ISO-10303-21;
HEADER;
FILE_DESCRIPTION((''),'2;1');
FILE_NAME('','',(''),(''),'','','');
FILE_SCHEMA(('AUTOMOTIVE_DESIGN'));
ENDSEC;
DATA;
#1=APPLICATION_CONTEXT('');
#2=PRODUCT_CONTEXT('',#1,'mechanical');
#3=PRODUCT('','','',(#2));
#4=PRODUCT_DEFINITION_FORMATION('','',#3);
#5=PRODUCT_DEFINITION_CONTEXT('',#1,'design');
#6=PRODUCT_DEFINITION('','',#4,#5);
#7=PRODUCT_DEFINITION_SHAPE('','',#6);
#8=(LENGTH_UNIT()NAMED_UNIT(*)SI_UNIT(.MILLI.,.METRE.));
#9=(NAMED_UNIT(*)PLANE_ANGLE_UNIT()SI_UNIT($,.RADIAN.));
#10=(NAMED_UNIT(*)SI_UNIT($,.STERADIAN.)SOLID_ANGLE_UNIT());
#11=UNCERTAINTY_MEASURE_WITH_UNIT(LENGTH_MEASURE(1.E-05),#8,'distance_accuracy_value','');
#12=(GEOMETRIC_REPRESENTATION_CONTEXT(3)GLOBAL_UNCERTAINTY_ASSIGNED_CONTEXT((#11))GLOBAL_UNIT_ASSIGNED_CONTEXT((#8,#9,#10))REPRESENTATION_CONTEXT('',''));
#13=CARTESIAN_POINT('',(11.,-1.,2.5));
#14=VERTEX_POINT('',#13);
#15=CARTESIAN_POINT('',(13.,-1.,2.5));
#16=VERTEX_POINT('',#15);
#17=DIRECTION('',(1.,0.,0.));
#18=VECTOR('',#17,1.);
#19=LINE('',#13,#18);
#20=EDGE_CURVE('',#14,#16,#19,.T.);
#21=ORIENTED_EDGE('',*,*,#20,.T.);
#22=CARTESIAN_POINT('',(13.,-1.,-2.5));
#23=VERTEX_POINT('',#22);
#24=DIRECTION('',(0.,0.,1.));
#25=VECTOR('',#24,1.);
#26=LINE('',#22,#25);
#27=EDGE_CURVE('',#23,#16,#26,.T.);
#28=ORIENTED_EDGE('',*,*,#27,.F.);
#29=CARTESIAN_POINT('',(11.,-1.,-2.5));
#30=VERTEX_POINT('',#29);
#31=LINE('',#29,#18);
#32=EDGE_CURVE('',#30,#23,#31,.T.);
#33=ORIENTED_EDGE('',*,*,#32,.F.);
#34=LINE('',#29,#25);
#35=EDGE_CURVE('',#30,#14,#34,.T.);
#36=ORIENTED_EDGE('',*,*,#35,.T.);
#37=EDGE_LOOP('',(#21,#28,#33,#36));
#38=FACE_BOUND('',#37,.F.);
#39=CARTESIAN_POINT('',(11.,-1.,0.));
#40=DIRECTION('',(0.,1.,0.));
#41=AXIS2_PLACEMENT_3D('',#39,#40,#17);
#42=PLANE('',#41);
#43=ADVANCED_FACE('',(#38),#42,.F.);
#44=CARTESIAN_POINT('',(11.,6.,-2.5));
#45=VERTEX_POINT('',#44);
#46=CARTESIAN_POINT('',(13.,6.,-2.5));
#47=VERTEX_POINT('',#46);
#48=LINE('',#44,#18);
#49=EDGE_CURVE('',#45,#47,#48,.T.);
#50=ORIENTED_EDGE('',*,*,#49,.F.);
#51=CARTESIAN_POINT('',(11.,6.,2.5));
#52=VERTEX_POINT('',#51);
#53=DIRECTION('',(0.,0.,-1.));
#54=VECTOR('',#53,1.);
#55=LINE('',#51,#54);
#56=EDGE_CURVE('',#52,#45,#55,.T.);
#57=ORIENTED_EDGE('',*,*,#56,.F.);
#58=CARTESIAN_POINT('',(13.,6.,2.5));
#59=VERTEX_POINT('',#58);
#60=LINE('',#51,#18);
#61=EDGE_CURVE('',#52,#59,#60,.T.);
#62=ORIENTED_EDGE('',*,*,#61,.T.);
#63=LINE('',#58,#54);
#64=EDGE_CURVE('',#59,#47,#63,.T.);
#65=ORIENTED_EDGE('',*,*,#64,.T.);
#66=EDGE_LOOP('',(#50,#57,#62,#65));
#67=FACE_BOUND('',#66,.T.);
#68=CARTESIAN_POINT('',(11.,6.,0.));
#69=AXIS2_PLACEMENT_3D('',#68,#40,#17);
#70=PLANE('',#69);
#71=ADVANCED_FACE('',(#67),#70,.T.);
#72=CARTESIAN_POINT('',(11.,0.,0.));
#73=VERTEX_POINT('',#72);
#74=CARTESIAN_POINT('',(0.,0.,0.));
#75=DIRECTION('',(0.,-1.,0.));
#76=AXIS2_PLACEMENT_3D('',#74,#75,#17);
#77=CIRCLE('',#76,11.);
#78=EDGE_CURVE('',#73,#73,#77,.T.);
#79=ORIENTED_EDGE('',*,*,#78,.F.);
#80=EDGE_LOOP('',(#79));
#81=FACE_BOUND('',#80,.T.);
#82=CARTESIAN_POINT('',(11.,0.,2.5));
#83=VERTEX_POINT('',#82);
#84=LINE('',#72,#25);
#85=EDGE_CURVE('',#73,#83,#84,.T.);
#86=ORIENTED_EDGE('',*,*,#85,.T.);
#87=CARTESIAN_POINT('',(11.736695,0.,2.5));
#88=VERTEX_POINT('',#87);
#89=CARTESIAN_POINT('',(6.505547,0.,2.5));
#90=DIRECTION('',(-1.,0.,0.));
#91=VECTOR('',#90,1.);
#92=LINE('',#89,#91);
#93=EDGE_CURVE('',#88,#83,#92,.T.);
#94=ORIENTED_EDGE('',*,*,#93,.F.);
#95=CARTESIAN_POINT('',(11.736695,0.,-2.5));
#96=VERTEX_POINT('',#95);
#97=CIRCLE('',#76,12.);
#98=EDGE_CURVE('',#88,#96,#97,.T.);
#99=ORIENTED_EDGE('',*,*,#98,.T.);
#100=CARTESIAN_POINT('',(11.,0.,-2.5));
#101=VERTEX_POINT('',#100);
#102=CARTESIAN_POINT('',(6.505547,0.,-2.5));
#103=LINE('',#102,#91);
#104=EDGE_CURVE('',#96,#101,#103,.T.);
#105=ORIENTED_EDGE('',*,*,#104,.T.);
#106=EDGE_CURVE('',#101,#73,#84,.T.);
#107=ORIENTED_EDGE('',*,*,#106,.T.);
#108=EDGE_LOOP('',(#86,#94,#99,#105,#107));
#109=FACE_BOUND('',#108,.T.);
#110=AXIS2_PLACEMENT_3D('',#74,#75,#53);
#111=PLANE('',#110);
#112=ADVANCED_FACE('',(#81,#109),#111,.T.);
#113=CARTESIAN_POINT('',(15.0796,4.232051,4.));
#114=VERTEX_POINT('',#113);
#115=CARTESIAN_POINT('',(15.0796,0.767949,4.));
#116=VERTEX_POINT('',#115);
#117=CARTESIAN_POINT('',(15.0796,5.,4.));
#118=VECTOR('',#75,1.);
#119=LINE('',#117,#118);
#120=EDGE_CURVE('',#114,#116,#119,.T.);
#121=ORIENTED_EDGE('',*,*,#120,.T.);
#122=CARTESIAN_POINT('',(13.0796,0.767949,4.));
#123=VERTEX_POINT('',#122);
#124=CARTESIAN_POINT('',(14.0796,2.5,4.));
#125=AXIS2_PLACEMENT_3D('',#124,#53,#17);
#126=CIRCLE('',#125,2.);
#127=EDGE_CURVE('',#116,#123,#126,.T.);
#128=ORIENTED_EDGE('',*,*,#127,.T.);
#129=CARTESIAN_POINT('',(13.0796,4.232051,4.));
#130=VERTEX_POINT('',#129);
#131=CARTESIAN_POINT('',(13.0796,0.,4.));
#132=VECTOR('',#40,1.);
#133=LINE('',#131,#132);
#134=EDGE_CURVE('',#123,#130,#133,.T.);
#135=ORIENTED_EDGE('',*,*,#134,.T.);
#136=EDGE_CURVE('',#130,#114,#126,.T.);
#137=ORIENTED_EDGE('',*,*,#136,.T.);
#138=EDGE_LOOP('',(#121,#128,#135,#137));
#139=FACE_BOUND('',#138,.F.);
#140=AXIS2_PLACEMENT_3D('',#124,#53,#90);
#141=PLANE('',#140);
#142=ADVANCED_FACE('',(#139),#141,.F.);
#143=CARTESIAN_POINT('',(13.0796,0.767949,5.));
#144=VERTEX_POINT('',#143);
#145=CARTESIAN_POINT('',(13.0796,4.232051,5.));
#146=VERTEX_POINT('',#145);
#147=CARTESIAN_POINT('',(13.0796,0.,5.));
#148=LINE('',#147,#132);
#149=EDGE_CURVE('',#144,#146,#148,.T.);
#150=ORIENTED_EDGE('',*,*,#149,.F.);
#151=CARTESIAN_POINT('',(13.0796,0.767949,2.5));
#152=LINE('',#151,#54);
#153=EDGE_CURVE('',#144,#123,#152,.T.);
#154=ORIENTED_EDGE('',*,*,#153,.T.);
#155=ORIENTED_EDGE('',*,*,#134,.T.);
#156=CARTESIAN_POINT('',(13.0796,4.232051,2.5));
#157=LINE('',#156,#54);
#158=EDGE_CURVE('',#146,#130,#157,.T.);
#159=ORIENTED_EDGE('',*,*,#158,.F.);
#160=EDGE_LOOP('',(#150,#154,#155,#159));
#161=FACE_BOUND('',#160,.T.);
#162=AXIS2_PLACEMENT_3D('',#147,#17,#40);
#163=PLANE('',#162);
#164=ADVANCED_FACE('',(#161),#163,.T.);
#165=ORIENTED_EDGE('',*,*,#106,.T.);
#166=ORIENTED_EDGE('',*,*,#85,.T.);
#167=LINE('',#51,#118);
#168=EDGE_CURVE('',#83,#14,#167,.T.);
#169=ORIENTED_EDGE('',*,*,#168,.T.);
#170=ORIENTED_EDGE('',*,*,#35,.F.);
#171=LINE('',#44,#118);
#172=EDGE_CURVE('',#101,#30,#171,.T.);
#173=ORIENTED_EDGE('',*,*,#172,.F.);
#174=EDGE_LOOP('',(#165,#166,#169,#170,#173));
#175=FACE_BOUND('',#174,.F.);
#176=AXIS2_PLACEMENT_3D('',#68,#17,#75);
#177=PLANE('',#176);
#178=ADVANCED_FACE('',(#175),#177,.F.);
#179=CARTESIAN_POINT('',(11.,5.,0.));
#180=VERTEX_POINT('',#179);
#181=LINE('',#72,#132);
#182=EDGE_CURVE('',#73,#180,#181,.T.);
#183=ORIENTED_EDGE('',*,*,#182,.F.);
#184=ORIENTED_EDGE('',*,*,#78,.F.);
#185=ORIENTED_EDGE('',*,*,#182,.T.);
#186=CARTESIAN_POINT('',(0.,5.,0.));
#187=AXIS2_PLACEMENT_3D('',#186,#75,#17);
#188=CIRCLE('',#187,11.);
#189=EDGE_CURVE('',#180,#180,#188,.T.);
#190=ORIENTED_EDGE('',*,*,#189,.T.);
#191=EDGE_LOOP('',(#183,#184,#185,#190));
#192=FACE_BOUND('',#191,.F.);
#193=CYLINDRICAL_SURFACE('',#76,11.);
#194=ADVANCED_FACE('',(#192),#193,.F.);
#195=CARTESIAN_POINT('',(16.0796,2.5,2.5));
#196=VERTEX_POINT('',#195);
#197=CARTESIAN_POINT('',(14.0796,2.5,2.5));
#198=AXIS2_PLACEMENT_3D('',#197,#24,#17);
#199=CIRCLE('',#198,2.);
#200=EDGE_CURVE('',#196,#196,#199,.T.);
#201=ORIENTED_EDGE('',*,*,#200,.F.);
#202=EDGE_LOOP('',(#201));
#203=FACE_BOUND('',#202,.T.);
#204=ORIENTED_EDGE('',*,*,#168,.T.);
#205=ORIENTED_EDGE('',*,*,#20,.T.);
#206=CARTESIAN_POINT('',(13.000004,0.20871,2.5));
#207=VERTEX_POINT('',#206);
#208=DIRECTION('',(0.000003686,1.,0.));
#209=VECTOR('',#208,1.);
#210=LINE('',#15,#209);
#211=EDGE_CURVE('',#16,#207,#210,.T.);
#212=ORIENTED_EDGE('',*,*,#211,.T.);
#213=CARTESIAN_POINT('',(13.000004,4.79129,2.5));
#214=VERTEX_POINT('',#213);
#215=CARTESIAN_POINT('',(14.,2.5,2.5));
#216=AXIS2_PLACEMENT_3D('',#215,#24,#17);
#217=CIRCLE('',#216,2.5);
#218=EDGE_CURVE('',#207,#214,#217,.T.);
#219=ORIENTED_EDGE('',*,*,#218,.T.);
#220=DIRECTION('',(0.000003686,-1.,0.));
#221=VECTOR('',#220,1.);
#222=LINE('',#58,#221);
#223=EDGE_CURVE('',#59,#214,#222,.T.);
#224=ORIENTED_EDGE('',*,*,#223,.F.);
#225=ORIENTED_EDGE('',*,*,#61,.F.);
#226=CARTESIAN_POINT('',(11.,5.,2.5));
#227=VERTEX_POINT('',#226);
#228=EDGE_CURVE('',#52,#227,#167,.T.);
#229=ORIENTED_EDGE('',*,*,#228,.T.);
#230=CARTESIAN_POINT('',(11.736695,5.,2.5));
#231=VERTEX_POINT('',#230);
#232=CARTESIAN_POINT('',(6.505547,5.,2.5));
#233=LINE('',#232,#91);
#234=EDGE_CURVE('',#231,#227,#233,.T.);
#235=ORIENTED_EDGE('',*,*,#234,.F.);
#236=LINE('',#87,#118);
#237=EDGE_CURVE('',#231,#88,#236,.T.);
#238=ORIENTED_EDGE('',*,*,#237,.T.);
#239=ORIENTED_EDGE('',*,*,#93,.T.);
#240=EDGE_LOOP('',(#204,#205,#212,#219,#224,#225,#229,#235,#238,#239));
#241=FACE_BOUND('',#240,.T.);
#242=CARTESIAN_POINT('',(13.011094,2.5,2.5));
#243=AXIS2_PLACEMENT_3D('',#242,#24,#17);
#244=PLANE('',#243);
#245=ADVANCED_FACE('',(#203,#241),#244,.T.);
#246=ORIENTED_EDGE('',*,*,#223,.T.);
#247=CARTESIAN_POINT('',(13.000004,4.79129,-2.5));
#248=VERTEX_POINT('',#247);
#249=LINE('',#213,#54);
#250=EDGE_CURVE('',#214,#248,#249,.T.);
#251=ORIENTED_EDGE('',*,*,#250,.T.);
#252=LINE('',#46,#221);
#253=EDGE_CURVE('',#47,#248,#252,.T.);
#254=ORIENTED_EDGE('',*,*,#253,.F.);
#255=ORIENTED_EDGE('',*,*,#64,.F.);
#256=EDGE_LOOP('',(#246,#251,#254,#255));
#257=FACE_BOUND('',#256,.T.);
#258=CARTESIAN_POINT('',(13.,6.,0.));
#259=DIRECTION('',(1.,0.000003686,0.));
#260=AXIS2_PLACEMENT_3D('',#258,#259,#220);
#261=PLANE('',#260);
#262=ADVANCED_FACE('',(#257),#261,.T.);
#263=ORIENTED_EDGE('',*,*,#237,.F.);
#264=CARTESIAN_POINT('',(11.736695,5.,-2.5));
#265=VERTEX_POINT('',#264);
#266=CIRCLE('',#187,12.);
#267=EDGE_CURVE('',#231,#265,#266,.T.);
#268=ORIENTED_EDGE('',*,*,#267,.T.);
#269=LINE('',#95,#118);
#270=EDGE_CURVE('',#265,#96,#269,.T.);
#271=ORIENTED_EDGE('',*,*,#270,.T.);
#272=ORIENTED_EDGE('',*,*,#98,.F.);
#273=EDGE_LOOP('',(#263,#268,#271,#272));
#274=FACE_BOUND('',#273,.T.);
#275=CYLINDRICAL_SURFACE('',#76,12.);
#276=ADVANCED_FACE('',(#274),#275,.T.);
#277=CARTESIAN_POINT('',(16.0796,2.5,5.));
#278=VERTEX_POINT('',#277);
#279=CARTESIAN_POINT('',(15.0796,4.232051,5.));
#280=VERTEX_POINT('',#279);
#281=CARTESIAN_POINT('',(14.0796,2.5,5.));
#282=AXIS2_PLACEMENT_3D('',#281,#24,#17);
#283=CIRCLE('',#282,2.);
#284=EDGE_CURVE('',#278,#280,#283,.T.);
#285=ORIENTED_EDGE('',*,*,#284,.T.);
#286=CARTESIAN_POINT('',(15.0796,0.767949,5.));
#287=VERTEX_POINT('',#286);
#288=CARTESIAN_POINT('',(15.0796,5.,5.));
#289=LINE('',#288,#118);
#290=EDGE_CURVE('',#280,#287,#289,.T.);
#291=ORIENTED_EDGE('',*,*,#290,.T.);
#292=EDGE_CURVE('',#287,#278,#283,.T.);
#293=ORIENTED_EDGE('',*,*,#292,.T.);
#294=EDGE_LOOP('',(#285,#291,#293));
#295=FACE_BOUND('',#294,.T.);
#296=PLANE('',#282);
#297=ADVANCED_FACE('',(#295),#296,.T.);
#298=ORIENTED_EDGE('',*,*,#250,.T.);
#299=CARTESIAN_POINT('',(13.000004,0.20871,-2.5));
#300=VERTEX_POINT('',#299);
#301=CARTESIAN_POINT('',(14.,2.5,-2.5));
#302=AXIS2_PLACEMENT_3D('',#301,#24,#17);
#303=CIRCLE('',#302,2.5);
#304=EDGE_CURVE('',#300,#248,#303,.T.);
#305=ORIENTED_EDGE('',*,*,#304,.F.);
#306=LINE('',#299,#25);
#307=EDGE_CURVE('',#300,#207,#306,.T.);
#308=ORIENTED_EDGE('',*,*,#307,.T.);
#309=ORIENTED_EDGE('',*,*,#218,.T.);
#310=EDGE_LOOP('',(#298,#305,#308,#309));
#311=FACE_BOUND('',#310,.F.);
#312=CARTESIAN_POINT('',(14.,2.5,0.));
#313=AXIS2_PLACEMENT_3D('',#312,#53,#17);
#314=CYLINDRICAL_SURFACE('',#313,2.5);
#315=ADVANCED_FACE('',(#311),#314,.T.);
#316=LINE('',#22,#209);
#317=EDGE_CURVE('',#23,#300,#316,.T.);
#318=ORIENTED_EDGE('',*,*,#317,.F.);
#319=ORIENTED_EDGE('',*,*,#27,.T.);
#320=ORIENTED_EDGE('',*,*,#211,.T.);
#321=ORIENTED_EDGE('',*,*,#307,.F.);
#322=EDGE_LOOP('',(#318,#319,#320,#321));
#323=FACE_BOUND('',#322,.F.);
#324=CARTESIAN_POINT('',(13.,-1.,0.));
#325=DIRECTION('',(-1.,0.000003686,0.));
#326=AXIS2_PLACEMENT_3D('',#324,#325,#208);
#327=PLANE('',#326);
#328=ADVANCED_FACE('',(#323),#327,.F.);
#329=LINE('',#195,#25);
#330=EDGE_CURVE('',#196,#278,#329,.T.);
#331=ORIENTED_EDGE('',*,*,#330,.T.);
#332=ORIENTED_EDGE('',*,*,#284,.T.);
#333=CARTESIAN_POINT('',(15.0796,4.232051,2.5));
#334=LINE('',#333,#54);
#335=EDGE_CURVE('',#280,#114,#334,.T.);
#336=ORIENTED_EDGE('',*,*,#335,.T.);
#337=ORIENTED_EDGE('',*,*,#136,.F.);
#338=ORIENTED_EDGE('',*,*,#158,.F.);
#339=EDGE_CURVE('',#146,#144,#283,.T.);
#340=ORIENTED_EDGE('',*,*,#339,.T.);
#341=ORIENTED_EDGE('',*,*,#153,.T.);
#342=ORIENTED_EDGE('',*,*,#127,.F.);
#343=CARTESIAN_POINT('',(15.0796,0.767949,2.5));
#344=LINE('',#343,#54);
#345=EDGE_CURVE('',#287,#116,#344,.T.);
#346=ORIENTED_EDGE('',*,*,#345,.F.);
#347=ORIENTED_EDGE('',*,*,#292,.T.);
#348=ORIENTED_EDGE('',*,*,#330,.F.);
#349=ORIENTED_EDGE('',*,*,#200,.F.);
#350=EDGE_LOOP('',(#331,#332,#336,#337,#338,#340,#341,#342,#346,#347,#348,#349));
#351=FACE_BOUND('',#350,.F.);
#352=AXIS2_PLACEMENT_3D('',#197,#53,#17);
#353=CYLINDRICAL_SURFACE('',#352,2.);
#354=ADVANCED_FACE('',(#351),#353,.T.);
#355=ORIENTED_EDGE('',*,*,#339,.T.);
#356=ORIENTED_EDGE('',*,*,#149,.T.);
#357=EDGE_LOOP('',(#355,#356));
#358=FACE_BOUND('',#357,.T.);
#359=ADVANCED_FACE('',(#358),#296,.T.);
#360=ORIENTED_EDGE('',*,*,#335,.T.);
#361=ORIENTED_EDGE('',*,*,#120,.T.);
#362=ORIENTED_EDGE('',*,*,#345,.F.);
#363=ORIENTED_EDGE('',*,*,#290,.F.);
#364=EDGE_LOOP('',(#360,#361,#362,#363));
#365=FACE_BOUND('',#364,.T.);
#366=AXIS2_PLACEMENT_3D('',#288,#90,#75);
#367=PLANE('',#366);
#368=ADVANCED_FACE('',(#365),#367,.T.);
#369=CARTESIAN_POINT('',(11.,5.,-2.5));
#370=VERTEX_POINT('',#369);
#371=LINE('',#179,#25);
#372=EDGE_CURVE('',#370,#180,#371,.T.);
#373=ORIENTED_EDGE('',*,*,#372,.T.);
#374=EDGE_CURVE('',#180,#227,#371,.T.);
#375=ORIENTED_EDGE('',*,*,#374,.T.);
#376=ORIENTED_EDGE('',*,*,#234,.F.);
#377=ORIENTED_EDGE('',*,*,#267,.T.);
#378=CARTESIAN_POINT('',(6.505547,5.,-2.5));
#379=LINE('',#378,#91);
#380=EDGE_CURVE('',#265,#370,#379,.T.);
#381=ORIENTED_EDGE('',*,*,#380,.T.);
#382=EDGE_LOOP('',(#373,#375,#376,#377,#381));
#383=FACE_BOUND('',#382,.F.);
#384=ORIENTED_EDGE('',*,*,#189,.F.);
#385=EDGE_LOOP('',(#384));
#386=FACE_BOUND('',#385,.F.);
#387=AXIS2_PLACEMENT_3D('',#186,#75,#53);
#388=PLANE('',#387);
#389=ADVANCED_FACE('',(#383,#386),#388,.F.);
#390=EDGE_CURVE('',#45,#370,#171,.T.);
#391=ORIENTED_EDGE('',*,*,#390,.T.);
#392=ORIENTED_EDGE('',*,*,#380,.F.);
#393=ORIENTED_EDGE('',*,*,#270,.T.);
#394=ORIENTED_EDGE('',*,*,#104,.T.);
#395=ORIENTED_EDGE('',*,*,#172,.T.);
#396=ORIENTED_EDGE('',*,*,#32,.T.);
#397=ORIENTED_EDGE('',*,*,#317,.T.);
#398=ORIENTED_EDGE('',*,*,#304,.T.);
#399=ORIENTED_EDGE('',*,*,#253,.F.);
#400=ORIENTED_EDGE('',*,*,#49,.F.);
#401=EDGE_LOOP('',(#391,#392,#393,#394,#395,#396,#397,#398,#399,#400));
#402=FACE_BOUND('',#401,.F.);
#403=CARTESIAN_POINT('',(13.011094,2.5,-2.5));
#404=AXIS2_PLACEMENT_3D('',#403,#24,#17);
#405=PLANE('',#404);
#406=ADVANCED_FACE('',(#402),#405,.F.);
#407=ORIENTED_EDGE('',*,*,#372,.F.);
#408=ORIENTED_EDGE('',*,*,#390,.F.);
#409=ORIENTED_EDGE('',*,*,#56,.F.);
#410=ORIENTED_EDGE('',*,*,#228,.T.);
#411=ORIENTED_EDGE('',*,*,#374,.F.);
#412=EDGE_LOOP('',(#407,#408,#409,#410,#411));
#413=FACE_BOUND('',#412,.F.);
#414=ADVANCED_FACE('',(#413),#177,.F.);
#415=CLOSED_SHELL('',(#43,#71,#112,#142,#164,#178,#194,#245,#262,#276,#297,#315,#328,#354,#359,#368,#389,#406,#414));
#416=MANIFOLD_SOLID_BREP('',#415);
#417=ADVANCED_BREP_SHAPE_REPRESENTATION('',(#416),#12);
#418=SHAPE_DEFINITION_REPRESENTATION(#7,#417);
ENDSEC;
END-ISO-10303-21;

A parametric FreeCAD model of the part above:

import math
import FreeCAD as App
import Part
import Sketcher
Q = App.Units.Quantity

doc = App.newDocument("Part")
body = doc.addObject("PartDesign::Body", "Body")

# Sketch on XZ plane
sketch1 = body.newObject("Sketcher::SketchObject", "Sketch")
sketch1.AttachmentSupport = (doc.getObject("XZ_Plane"), [""])
sketch1.MapMode = "FlatFace"
sketch1.addGeometry([
    Part.Circle(App.Vector(0, 0, 0), App.Vector(0, 0, 1), 12),
    Part.Circle(App.Vector(0, 0, 0), App.Vector(0, 0, 1), 11),
], False)
sketch1.addConstraint([
    Sketcher.Constraint("Coincident", 0, 3, -1, 1),
    Sketcher.Constraint("Coincident", 1, 3, -1, 1),
    Sketcher.Constraint("Diameter", 0, Q("24 mm")),
    Sketcher.Constraint("Diameter", 1, Q("22 mm")),
])
pad1 = body.newObject("PartDesign::Pad", "Pad")
pad1.Profile = sketch1
pad1.Length = 5
pad1.Reversed = True

# Sketch on XY plane
sketch2 = body.newObject("Sketcher::SketchObject", "Sketch001")
sketch2.AttachmentSupport = (doc.getObject("XY_Plane"), [""])
sketch2.MapMode = "FlatFace"
sketch2.addGeometry([
    Part.LineSegment(App.Vector(13, 6, 0), App.Vector(11, 6, 0)),  # 0
    Part.LineSegment(App.Vector(11, 6, 0), App.Vector(11, -1, 0)),  # 1
    Part.LineSegment(App.Vector(11, -1, 0), App.Vector(13, -1, 0)),  # 2
    Part.LineSegment(App.Vector(13, -1, 0), App.Vector(13, 0.2087, 0)),  # 3
    Part.ArcOfCircle(Part.Circle(App.Vector(14, 2.5, 0), App.Vector(0, 0, 1), 2.500011), math.radians(-113.578067), math.radians(113.578067)),  # 4
    Part.LineSegment(App.Vector(13, 4.7913, 0), App.Vector(13, 6, 0)),  # 5
], False)
sketch2.addConstraint([
    Sketcher.Constraint("Coincident", 0, 2, 1, 1),
    Sketcher.Constraint("Coincident", 1, 2, 2, 1),
    Sketcher.Constraint("Coincident", 2, 2, 3, 1),
    Sketcher.Constraint("Coincident", 3, 2, 4, 1),
    Sketcher.Constraint("Coincident", 4, 2, 5, 1),
    Sketcher.Constraint("Coincident", 5, 2, 0, 1),
    Sketcher.Constraint("Horizontal", 0),
    Sketcher.Constraint("Vertical", 1),
    Sketcher.Constraint("Horizontal", 2),
    Sketcher.Constraint("Vertical", 3),
    Sketcher.Constraint("Vertical", 5),
    Sketcher.Constraint("Vertical", 3, 2, 4, 2),
    Sketcher.Constraint("Equal", 3, 5),
    Sketcher.Constraint("DistanceX", -1, 1, 4, 3, Q("14 mm")),
    Sketcher.Constraint("DistanceX", -1, 1, 0, 2, Q("11 mm")),
    Sketcher.Constraint("Radius", 4, Q("2.5 mm")),
    Sketcher.Constraint("DistanceX", 0, 2, 0, 1, Q("2 mm")),
    Sketcher.Constraint("DistanceY", 1, 2, 1, 1, Q("7 mm")),
    Sketcher.Constraint("DistanceY", -1, 1, 0, 2, Q("6 mm")),
])
pad2 = body.newObject("PartDesign::Pad", "Pad001")
pad2.Profile = sketch2
pad2.Length = 5
pad2.Midplane = True

# Sketch on XY plane
sketch3 = body.newObject("Sketcher::SketchObject", "Sketch002")
sketch3.AttachmentSupport = (doc.getObject("XY_Plane"), [""])
sketch3.MapMode = "FlatFace"
sketch3.AttachmentOffset = App.Placement(App.Vector(0, 0, 2.5), App.Rotation())
sketch3.addGeometry(Part.Circle(App.Vector(14.0796, 2.5, 0), App.Vector(0, 0, 1), 2), False)
sketch3.addConstraint([
    Sketcher.Constraint("Diameter", 0, Q("4 mm")),
    Sketcher.Constraint("DistanceY", -1, 1, 0, 3, Q("2.5 mm")),
    Sketcher.Constraint("DistanceX", -1, 1, 0, 3, Q("14.0796 mm")),
])
pad3 = body.newObject("PartDesign::Pad", "Pad002")
pad3.Profile = sketch3
pad3.Length = 5
pad3.Midplane = True

# Sketch on XY plane
sketch4 = body.newObject("Sketcher::SketchObject", "Sketch003")
sketch4.AttachmentSupport = (doc.getObject("XY_Plane"), [""])
sketch4.MapMode = "FlatFace"
sketch4.AttachmentOffset = App.Placement(App.Vector(0, 0, 5), App.Rotation())
sketch4.addGeometry([
    Part.LineSegment(App.Vector(15.0796, 5, 0), App.Vector(13.0796, 5, 0)),
    Part.LineSegment(App.Vector(13.0796, 5, 0), App.Vector(13.0796, 0, 0)),
    Part.LineSegment(App.Vector(13.0796, 0, 0), App.Vector(15.0796, 0, 0)),
    Part.LineSegment(App.Vector(15.0796, 0, 0), App.Vector(15.0796, 5, 0)),
], False)
sketch4.addConstraint([
    Sketcher.Constraint("Coincident", 0, 2, 1, 1),
    Sketcher.Constraint("Coincident", 1, 2, 2, 1),
    Sketcher.Constraint("Coincident", 2, 2, 3, 1),
    Sketcher.Constraint("Coincident", 3, 2, 0, 1),
    Sketcher.Constraint("Horizontal", 0),
    Sketcher.Constraint("Vertical", 1),
    Sketcher.Constraint("Horizontal", 2),
    Sketcher.Constraint("Vertical", 3),
    Sketcher.Constraint("PointOnObject", 1, 2, -1),
    Sketcher.Constraint("DistanceX", 0, 2, 0, 1, Q("2 mm")),
    Sketcher.Constraint("DistanceY", 1, 2, 1, 1, Q("5 mm")),
    Sketcher.Constraint("DistanceX", -1, 1, 0, 2, Q("13.0796 mm")),
])
pocket1 = body.newObject("PartDesign::Pocket", "Pocket")
pocket1.Profile = sketch4
pocket1.Length = 1

doc.recompute()
